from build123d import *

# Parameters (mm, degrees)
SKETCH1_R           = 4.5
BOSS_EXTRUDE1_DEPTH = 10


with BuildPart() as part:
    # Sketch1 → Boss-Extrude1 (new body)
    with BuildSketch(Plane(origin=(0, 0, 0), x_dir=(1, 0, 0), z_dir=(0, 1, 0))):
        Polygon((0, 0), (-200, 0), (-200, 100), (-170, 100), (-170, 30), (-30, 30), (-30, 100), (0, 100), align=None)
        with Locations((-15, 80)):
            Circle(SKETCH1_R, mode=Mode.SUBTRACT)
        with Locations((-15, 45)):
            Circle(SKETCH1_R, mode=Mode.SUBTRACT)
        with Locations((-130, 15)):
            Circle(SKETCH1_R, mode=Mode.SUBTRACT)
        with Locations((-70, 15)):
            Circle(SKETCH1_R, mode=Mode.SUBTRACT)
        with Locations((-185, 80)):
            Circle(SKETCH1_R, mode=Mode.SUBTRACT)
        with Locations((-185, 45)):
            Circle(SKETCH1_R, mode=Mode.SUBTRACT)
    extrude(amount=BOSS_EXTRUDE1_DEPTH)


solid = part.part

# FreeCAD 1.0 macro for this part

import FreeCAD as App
import Part
import Sketcher
from FreeCAD import Vector


def add_polygon(sketch, points):
    """Adds a closed chain of lines whose ends are joined by coincident constraints."""
    first, n = sketch.GeometryCount, len(points)
    for a, b in zip(points, points[1:] + points[:1]):
        sketch.addGeometry(Part.LineSegment(App.Vector(*a, 0), App.Vector(*b, 0)), False)
    for i in range(n):
        sketch.addConstraint(Sketcher.Constraint("Coincident", first + i, 2, first + (i + 1) % n, 1))

doc = App.newDocument("Part")
body = doc.addObject("PartDesign::Body", "Body")

# Sketch on XZ plane
sketch1 = doc.addObject("Sketcher::SketchObject", "Sketch")
body.addObject(sketch1)
sketch1.AttachmentSupport = (doc.XZ_Plane, [""])
sketch1.MapMode = "FlatFace"
add_polygon(sketch1, [(-200, 0), (0, 0), (0, -100), (-30, -100), (-30, -30), (-170, -30), (-170, -100), (-200, -100)])  # lines 0-7
sketch1.addGeometry(Part.Circle(Vector(-70, -15, 0), Vector(0, 0, 1), 4.5), False)  # 8
sketch1.addGeometry(Part.Circle(Vector(-15, -45, 0), Vector(0, 0, 1), 4.5), False)  # 9
sketch1.addGeometry(Part.Circle(Vector(-130, -15, 0), Vector(0, 0, 1), 4.5), False)  # 10
sketch1.addGeometry(Part.Circle(Vector(-185, -45, 0), Vector(0, 0, 1), 4.5), False)  # 11
sketch1.addGeometry(Part.Circle(Vector(-15, -80, 0), Vector(0, 0, 1), 4.5), False)  # 12
sketch1.addGeometry(Part.Circle(Vector(-185, -80, 0), Vector(0, 0, 1), 4.5), False)  # 13
sketch1.addConstraint(Sketcher.Constraint("Horizontal", 0))
sketch1.addConstraint(Sketcher.Constraint("Vertical", 1))
sketch1.addConstraint(Sketcher.Constraint("Horizontal", 2))
sketch1.addConstraint(Sketcher.Constraint("Vertical", 3))
sketch1.addConstraint(Sketcher.Constraint("Horizontal", 4))
sketch1.addConstraint(Sketcher.Constraint("Vertical", 5))
sketch1.addConstraint(Sketcher.Constraint("Horizontal", 6))
sketch1.addConstraint(Sketcher.Constraint("Vertical", 7))
sketch1.addConstraint(Sketcher.Constraint("Coincident", 0, 2, -1, 1))
sketch1.addConstraint(Sketcher.Constraint("Equal", 8, 9))
sketch1.addConstraint(Sketcher.Constraint("Equal", 9, 10))
sketch1.addConstraint(Sketcher.Constraint("Equal", 10, 11))
sketch1.addConstraint(Sketcher.Constraint("Equal", 11, 12))
sketch1.addConstraint(Sketcher.Constraint("Equal", 12, 13))
sketch1.addConstraint(Sketcher.Constraint("Horizontal", 8, 3, 10, 3))
sketch1.addConstraint(Sketcher.Constraint("Horizontal", 9, 3, 11, 3))
sketch1.addConstraint(Sketcher.Constraint("Horizontal", 12, 3, 13, 3))
sketch1.addConstraint(Sketcher.Constraint("Horizontal", 2, 2, 5, 2))
sketch1.addConstraint(Sketcher.Constraint("Vertical", 9, 3, 12, 3))
sketch1.addConstraint(Sketcher.Constraint("Vertical", 11, 3, 13, 3))
sketch1.addConstraint(Sketcher.Constraint("Equal", 2, 6))
sketch1.addConstraint(Sketcher.Constraint("Diameter", 8, 9.0))
sketch1.addConstraint(Sketcher.Constraint("DistanceX", 0, 1, 0, 2, 200.0))
sketch1.addConstraint(Sketcher.Constraint("DistanceX", 2, 2, 2, 1, 30.0))
sketch1.addConstraint(Sketcher.Constraint("DistanceY", 1, 2, 1, 1, 100.0))
sketch1.addConstraint(Sketcher.Constraint("DistanceY", 3, 1, 3, 2, 70.0))
sketch1.addConstraint(Sketcher.Constraint("DistanceX", 8, 3, -1, 1, 70.0))
sketch1.addConstraint(Sketcher.Constraint("DistanceY", 8, 3, -1, 1, 15.0))
sketch1.addConstraint(Sketcher.Constraint("DistanceX", 9, 3, -1, 1, 15.0))
sketch1.addConstraint(Sketcher.Constraint("DistanceY", 9, 3, -1, 1, 45.0))
sketch1.addConstraint(Sketcher.Constraint("DistanceX", 10, 3, -1, 1, 130.0))
sketch1.addConstraint(Sketcher.Constraint("DistanceX", 11, 3, -1, 1, 185.0))
sketch1.addConstraint(Sketcher.Constraint("DistanceY", 12, 3, -1, 1, 80.0))
pad1 = doc.addObject("PartDesign::Pad", "Pad")
body.addObject(pad1)
pad1.Profile = sketch1
pad1.Length = 10
pad1.Reversed = True

doc.recompute()
